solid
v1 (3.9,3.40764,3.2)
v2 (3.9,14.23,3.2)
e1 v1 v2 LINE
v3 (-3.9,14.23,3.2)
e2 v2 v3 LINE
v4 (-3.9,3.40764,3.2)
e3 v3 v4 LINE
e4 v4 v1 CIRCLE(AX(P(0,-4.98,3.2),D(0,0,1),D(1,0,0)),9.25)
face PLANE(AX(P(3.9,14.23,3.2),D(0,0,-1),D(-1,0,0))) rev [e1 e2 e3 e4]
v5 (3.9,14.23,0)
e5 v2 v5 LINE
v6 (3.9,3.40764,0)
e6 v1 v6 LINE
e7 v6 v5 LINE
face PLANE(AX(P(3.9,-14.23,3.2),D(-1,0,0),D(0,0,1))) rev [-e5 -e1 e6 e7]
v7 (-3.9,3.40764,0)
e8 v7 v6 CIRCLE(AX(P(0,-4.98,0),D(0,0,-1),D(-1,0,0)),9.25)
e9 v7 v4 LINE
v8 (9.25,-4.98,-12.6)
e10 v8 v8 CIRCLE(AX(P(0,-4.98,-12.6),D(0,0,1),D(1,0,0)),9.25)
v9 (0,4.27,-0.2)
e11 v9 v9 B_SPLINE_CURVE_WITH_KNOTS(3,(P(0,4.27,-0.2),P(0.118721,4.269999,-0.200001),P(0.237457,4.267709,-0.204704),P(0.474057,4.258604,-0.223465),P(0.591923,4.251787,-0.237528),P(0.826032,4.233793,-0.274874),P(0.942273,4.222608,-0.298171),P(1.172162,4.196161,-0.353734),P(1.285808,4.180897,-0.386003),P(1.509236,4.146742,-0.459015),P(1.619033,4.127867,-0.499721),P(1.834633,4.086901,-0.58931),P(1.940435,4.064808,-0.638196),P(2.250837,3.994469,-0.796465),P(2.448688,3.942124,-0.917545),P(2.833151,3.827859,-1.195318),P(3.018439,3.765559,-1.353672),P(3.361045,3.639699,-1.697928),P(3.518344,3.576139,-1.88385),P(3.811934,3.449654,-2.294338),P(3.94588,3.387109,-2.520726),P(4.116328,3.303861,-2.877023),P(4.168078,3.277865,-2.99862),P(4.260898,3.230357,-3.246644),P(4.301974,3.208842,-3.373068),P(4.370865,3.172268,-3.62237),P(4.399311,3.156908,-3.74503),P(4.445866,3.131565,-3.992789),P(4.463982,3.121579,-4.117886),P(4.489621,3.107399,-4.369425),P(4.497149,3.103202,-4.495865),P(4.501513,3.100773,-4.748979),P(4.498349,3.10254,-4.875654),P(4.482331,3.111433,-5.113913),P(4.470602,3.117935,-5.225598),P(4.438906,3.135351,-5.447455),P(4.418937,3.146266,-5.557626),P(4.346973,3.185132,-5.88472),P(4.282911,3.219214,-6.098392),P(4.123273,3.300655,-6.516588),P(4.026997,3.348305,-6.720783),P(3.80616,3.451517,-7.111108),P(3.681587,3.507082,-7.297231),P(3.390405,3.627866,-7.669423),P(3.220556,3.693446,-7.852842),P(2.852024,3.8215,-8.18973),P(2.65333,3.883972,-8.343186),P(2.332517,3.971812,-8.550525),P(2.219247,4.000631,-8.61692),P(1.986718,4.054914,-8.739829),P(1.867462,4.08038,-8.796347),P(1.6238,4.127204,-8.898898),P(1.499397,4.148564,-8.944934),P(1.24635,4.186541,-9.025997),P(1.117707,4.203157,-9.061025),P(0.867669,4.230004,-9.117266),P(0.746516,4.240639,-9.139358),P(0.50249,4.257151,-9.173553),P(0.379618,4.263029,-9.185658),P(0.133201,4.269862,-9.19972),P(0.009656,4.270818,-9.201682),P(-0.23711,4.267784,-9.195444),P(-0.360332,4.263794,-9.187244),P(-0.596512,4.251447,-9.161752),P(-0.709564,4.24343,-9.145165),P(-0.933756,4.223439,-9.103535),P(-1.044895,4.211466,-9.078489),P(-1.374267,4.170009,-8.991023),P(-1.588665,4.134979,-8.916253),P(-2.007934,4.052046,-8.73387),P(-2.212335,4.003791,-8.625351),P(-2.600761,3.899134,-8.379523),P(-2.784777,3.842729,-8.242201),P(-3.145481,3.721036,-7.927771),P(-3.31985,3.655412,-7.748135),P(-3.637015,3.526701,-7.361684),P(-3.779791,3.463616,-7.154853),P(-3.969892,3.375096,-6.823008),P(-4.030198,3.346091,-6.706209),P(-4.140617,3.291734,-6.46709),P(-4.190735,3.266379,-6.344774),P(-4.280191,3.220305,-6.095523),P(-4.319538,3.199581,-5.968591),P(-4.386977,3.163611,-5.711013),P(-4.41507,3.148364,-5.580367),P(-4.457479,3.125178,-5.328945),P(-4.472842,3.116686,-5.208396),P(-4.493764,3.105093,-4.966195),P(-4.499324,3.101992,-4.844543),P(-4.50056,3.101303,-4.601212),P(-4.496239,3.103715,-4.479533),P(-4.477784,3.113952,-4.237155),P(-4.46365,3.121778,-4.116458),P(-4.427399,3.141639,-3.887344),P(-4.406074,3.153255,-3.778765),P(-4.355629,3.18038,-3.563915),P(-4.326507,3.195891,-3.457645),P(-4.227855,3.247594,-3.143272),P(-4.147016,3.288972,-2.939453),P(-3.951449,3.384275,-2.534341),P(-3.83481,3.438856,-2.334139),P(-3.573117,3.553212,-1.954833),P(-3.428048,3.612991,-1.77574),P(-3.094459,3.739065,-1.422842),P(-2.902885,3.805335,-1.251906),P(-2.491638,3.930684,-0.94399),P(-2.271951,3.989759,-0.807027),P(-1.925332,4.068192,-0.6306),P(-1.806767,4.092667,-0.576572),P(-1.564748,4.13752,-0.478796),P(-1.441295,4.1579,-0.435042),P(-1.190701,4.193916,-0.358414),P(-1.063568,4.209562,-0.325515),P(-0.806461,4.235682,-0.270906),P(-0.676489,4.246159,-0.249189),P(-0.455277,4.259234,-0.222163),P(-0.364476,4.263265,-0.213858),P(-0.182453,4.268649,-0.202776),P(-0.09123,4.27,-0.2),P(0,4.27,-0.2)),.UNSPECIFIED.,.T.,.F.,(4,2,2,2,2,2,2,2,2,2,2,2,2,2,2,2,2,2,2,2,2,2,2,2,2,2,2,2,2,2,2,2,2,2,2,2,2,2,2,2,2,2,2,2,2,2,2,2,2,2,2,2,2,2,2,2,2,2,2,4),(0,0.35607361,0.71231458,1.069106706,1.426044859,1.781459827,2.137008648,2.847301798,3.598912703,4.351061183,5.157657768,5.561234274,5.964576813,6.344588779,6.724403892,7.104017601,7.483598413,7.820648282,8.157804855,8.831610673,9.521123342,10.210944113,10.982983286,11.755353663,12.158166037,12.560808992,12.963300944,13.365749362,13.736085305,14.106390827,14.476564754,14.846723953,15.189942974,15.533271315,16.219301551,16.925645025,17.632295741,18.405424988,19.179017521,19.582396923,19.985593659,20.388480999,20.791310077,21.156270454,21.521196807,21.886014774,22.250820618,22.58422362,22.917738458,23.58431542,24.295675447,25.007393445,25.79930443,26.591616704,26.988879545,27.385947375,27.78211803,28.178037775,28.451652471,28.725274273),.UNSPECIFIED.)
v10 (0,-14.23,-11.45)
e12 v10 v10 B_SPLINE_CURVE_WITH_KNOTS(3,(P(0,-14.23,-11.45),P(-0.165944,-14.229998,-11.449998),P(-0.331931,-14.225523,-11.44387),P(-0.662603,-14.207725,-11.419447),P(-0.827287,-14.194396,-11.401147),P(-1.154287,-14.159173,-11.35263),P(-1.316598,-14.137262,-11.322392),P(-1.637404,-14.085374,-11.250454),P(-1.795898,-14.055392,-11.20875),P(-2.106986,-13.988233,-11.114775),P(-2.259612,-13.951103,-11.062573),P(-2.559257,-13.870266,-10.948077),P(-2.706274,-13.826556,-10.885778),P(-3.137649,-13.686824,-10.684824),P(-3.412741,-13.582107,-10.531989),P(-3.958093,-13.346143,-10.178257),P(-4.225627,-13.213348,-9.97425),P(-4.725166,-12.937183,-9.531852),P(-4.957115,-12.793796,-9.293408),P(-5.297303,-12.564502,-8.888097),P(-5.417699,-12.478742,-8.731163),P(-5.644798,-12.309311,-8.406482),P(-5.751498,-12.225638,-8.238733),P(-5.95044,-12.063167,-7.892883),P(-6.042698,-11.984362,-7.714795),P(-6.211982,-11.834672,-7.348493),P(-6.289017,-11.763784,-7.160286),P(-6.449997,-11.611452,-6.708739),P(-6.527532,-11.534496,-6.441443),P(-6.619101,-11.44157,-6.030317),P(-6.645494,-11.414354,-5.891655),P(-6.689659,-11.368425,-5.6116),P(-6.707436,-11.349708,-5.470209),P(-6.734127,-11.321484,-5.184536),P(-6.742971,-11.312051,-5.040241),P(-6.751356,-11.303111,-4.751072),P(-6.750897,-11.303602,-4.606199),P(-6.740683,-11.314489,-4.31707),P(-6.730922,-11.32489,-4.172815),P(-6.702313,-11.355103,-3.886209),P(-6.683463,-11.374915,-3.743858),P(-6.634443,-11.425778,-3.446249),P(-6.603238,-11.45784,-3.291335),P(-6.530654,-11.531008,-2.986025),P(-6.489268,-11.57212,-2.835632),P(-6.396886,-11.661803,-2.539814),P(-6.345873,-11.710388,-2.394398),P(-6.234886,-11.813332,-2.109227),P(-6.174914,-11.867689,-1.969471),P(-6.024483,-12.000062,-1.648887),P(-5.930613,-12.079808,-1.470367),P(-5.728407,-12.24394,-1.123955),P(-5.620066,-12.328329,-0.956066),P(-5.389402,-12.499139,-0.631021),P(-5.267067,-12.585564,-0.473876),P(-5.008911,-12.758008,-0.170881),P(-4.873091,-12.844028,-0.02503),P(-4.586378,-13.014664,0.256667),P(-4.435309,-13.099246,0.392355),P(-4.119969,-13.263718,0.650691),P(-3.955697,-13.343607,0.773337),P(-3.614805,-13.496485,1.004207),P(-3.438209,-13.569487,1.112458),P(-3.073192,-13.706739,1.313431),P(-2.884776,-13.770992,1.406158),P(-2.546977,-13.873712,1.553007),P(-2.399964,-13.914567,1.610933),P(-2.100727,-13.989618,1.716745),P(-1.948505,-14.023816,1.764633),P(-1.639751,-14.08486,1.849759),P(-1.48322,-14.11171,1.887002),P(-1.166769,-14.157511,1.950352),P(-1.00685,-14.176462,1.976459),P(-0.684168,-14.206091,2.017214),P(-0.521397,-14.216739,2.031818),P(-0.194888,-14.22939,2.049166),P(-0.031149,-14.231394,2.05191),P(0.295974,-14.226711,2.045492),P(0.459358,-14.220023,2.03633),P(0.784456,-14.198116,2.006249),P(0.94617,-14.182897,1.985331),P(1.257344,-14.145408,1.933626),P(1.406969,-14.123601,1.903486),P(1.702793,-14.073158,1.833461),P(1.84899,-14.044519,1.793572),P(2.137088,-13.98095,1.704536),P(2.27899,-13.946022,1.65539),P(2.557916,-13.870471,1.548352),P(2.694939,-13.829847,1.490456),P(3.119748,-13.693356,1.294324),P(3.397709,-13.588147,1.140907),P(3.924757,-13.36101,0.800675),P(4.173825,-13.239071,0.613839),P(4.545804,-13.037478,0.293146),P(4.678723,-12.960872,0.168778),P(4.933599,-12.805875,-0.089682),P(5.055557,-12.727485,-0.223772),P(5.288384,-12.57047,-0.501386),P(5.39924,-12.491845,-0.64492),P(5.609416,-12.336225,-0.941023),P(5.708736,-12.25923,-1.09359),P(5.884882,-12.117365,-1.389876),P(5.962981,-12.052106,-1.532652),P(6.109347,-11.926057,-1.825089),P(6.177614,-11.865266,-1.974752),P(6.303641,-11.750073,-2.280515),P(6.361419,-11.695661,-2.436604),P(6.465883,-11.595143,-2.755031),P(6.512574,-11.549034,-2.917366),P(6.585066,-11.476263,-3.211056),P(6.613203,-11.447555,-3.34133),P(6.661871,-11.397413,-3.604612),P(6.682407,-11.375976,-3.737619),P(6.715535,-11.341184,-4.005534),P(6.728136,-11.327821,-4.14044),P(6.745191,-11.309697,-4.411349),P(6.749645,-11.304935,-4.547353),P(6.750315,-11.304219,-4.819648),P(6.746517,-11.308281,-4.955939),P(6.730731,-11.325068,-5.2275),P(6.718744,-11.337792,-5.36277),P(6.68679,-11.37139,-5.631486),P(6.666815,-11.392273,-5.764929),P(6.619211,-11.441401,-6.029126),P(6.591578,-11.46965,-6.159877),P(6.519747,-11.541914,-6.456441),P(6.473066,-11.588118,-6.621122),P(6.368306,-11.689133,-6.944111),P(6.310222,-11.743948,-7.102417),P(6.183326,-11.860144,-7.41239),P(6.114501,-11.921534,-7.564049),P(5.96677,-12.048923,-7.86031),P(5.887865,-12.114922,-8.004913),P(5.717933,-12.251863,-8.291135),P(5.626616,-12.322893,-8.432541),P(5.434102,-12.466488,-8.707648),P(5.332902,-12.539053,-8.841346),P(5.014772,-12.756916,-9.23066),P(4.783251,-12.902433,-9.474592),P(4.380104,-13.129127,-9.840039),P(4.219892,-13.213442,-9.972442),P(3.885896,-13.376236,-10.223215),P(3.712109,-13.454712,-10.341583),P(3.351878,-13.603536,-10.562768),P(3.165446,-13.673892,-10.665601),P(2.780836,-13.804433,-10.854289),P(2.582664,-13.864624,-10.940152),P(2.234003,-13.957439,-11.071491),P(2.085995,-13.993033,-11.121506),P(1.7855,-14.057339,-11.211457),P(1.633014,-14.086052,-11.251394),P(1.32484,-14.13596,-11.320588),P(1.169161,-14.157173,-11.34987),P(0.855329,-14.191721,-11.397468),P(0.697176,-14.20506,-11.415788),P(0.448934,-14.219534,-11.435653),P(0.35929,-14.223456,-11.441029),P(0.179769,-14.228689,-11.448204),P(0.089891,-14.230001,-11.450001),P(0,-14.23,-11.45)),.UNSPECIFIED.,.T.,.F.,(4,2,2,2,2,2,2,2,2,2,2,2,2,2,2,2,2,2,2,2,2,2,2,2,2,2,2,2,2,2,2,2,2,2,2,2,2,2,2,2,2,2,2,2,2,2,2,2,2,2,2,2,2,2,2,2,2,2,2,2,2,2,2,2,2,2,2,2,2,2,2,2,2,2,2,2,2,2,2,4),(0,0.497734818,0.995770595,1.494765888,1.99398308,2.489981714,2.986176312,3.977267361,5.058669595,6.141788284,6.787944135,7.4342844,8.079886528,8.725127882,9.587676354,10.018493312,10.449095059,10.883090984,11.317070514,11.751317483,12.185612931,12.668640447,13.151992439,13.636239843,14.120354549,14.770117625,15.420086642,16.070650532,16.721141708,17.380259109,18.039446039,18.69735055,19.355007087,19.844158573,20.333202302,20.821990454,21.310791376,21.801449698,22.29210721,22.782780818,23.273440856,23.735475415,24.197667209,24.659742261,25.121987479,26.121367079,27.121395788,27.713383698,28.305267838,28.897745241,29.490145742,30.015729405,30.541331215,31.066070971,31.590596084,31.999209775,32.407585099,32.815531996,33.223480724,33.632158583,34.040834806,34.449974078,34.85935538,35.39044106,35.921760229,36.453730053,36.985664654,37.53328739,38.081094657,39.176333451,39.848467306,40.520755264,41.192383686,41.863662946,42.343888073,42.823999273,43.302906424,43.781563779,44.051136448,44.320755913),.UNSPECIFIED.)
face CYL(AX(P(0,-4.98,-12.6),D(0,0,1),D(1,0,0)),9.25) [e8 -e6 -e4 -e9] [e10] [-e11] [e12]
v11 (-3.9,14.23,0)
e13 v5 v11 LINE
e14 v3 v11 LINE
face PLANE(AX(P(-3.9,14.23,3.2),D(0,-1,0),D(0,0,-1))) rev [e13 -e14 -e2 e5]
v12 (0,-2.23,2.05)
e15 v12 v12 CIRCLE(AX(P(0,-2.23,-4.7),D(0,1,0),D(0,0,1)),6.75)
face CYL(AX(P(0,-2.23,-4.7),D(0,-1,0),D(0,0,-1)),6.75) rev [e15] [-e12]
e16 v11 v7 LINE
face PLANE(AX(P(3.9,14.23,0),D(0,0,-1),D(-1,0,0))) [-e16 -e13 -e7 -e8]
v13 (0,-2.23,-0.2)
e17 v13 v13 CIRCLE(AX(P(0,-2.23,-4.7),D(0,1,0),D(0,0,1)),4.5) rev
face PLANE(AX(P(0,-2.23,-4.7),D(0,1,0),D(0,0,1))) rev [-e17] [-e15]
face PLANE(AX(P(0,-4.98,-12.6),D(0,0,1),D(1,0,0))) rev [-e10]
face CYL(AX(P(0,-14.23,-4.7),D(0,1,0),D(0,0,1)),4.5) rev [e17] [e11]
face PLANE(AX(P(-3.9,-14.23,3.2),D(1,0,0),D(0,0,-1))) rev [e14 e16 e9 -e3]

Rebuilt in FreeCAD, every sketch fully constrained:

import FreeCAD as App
import Part
import Sketcher


def add_polygon(sketch, points):
    """Adds a closed chain of lines whose ends are joined by coincident constraints."""
    first, n = sketch.GeometryCount, len(points)
    for a, b in zip(points, points[1:] + points[:1]):
        sketch.addGeometry(Part.LineSegment(App.Vector(*a, 0), App.Vector(*b, 0)), False)
    for i in range(n):
        sketch.addConstraint(Sketcher.Constraint("Coincident", first + i, 2, first + (i + 1) % n, 1))

doc = App.newDocument("Part")
params = doc.addObject("Spreadsheet::Sheet", "Params")
for row, (alias, value) in enumerate([
    ("sketch1_width", "7.8 mm"),
    ("sketch1_height", "28.46 mm"),
    ("pad1_length", "3.2 mm"),
    ("sketch2_width", "7.8 mm"),
    ("sketch3_diameter", "18.5 mm"),
    ("pad2_length", "15.8 mm"),
    ("sketch4_diameter", "9 mm"),
    ("sketch5_diameter", "13.5 mm"),
    ("pocket3_length", "12 mm"),
], start=1):
    params.set(f"A{row}", alias)
    params.set(f"B{row}", "=" + value)
    params.setAlias(f"B{row}", alias)

body = doc.addObject("PartDesign::Body", "Body")

sketch1 = doc.addObject("Sketcher::SketchObject", "Sketch")
body.addObject(sketch1)
sketch1.AttachmentSupport = (doc.XY_Plane, [""])
sketch1.MapMode = "FlatFace"
add_polygon(sketch1, [(-3.9, 14.23), (-3.9, -14.23), (3.9, -14.23), (3.9, 14.23)])
sketch1.addConstraint([
    Sketcher.Constraint("Vertical", 0),
    Sketcher.Constraint("Horizontal", 1),
    Sketcher.Constraint("Vertical", 2),
    Sketcher.Constraint("Horizontal", 3),
    Sketcher.Constraint("Symmetric", 0, 2, 2, 2, -1, 1),
    Sketcher.Constraint("DistanceX", 1, 1, 1, 2, 7.8),
    Sketcher.Constraint("DistanceY", 0, 2, 0, 1, 28.46),
])
sketch1.setExpression("Constraints[9]", "Params.sketch1_width")
sketch1.setExpression("Constraints[10]", "Params.sketch1_height")
pad1 = doc.addObject("PartDesign::Pad", "Pad")
body.addObject(pad1)
pad1.Profile = sketch1
pad1.setExpression("Length", "Params.pad1_length")

sketch2 = doc.addObject("Sketcher::SketchObject", "Sketch001")
body.addObject(sketch2)
sketch2.AttachmentSupport = (doc.XY_Plane, [""])
sketch2.MapMode = "FlatFace"
add_polygon(sketch2, [(3.9, -7.051564), (3.9, -14.23), (-3.9, -14.23), (-3.9, -7.051564)])
sketch2.addConstraint([
    Sketcher.Constraint("Vertical", 0),
    Sketcher.Constraint("Horizontal", 1),
    Sketcher.Constraint("Vertical", 2),
    Sketcher.Constraint("Horizontal", 3),
    Sketcher.Constraint("DistanceX", 1, 2, 1, 1, 7.8),
    Sketcher.Constraint("DistanceX", -1, 1, 0, 2, 3.9),
    Sketcher.Constraint("DistanceY", 0, 2, -1, 1, 14.23),
    Sketcher.Constraint("DistanceY", 0, 2, 0, 1, 7.178436),
])
sketch2.setExpression("Constraints[8]", "Params.sketch2_width")
pocket1 = doc.addObject("PartDesign::Pocket", "Pocket")
body.addObject(pocket1)
pocket1.Profile = sketch2
pocket1.Type = "ThroughAll"
pocket1.Reversed = True

sketch3 = doc.addObject("Sketcher::SketchObject", "Sketch002")
body.addObject(sketch3)
sketch3.AttachmentSupport = (doc.XY_Plane, [""])
sketch3.MapMode = "FlatFace"
sketch3.AttachmentOffset = App.Placement(App.Vector(0, 0, 3.2), App.Rotation())
sketch3.addGeometry(Part.Circle(App.Vector(0, -4.98, 0), App.Vector(0, 0, 1), 9.25), False)
sketch3.addConstraint([
    Sketcher.Constraint("PointOnObject", 0, 3, -2),
    Sketcher.Constraint("Diameter", 0, 18.5),
    Sketcher.Constraint("DistanceY", 0, 3, -1, 1, 4.98),
])
sketch3.setExpression("Constraints[1]", "Params.sketch3_diameter")
pad2 = doc.addObject("PartDesign::Pad", "Pad001")
body.addObject(pad2)
pad2.Profile = sketch3
pad2.setExpression("Length", "Params.pad2_length")
pad2.Reversed = True

sketch4 = doc.addObject("Sketcher::SketchObject", "Sketch003")
body.addObject(sketch4)
sketch4.AttachmentSupport = (doc.XZ_Plane, [""])
sketch4.MapMode = "FlatFace"
sketch4.AttachmentOffset = App.Placement(App.Vector(0, 0, -14.23), App.Rotation())
sketch4.addGeometry(Part.Circle(App.Vector(0, -4.7, 0), App.Vector(0, 0, 1), 4.5), False)
sketch4.addConstraint([
    Sketcher.Constraint("PointOnObject", 0, 3, -2),
    Sketcher.Constraint("Diameter", 0, 9.0),
    Sketcher.Constraint("DistanceY", 0, 3, -1, 1, 4.7),
])
sketch4.setExpression("Constraints[1]", "Params.sketch4_diameter")
pocket2 = doc.addObject("PartDesign::Pocket", "Pocket001")
body.addObject(pocket2)
pocket2.Profile = sketch4
pocket2.Type = "ThroughAll"
pocket2.Reversed = True

sketch5 = doc.addObject("Sketcher::SketchObject", "Sketch004")
body.addObject(sketch5)
sketch5.AttachmentSupport = (doc.XZ_Plane, [""])
sketch5.MapMode = "FlatFace"
sketch5.AttachmentOffset = App.Placement(App.Vector(0, 0, 14.23), App.Rotation())
sketch5.addGeometry(Part.Circle(App.Vector(0, -4.7, 0), App.Vector(0, 0, 1), 6.75), False)
sketch5.addConstraint([
    Sketcher.Constraint("PointOnObject", 0, 3, -2),
    Sketcher.Constraint("Diameter", 0, 13.5),
    Sketcher.Constraint("DistanceY", 0, 3, -1, 1, 4.7),
])
sketch5.setExpression("Constraints[1]", "Params.sketch5_diameter")
pocket3 = doc.addObject("PartDesign::Pocket", "Pocket002")
body.addObject(pocket3)
pocket3.Profile = sketch5
pocket3.setExpression("Length", "Params.pocket3_length")

doc.recompute()
